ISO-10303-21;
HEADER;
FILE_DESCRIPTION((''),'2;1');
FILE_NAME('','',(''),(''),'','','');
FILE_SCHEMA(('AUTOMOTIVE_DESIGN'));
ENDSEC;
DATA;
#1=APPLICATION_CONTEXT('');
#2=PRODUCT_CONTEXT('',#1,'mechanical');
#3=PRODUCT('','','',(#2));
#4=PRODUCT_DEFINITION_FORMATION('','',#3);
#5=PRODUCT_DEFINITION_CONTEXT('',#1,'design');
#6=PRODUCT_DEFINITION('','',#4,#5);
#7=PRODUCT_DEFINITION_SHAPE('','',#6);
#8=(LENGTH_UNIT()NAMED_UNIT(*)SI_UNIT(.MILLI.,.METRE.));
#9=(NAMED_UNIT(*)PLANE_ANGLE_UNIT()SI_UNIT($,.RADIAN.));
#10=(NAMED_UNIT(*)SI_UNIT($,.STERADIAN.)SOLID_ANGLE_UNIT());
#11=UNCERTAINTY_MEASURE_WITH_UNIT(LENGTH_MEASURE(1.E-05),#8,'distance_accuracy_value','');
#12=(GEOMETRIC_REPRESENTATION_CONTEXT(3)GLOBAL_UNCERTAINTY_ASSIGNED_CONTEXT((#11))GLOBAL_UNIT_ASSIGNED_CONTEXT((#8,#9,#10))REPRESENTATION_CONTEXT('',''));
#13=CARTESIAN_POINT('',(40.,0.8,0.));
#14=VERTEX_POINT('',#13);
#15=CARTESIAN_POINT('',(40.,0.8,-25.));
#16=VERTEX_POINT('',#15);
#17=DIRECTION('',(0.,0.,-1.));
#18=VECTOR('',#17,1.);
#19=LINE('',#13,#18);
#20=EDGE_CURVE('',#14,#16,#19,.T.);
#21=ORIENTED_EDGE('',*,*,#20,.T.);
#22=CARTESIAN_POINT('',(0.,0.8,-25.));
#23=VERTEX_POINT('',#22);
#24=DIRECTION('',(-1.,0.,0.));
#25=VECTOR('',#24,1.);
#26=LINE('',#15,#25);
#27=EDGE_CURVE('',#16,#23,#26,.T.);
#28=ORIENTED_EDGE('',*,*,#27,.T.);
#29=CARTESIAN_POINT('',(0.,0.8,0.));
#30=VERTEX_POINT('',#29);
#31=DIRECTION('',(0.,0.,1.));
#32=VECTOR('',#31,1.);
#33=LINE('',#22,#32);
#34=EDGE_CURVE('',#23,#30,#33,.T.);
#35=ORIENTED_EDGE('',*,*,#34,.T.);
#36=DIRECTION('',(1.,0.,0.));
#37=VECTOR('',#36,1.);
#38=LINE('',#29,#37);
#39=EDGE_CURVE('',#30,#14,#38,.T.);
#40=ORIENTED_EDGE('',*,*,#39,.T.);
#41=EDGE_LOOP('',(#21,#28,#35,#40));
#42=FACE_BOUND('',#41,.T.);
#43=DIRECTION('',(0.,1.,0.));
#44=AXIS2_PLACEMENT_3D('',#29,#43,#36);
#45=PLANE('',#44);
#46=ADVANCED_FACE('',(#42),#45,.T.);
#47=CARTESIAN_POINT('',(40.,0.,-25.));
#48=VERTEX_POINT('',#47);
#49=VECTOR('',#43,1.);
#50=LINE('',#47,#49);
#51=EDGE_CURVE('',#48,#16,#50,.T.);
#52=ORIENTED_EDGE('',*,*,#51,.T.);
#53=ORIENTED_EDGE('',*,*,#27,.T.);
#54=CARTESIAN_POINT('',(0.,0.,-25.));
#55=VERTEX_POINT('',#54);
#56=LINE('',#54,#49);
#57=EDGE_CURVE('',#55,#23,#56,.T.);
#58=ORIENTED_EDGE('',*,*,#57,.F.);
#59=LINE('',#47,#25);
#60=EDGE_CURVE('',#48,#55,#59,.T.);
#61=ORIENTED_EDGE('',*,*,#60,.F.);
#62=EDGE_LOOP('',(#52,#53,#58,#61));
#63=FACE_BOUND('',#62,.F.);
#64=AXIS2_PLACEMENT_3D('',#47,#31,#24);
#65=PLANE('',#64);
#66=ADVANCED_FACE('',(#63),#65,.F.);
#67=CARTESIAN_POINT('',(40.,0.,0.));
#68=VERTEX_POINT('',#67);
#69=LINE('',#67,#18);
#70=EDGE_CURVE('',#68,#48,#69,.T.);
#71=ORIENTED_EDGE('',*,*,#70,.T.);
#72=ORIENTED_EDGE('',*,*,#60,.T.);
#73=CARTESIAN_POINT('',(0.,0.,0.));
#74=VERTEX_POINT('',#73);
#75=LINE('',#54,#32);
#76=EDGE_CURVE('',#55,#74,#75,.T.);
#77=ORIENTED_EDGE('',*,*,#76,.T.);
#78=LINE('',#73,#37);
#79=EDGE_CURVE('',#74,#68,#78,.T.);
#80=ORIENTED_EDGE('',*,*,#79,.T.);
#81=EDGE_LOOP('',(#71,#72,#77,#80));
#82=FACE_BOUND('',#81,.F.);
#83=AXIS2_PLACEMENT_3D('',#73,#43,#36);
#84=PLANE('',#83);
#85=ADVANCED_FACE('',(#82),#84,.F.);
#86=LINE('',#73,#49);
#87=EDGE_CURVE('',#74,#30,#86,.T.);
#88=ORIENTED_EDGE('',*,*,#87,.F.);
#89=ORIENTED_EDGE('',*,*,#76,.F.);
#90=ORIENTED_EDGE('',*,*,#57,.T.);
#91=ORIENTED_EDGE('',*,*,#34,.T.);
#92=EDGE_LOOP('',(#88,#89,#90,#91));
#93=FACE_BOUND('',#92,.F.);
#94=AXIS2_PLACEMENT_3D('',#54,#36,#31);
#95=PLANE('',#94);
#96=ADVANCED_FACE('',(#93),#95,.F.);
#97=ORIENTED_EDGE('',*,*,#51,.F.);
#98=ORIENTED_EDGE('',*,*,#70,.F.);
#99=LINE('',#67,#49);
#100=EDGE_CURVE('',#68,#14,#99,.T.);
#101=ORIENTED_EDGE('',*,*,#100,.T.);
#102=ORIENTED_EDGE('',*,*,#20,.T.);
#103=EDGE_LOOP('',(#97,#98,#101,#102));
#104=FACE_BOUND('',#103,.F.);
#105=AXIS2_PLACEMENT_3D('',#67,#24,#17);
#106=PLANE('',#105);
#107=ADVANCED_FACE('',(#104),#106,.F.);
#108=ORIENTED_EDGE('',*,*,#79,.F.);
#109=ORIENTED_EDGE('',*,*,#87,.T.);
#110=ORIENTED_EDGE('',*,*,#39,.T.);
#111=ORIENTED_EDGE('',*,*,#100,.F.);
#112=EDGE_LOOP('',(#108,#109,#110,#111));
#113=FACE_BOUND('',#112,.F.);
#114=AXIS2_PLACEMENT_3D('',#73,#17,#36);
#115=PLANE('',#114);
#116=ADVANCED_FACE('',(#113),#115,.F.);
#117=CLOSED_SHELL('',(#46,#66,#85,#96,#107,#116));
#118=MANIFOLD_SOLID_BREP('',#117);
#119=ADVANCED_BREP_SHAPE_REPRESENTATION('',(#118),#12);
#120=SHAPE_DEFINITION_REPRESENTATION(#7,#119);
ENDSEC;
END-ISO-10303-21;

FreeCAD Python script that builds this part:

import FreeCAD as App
import Part
import Sketcher

V = App.Vector


def add_polygon(sketch, points):
    """Adds a closed chain of lines whose ends are joined by coincident constraints."""
    first, n = sketch.GeometryCount, len(points)
    for a, b in zip(points, points[1:] + points[:1]):
        sketch.addGeometry(Part.LineSegment(App.Vector(*a, 0), App.Vector(*b, 0)), False)
    for i in range(n):
        sketch.addConstraint(Sketcher.Constraint("Coincident", first + i, 2, first + (i + 1) % n, 1))

doc = App.newDocument("Part")
body = doc.addObject("PartDesign::Body", "Body")

# Sketch on XZ plane
sketch1 = body.newObject("Sketcher::SketchObject", "Sketch")
sketch1.AttachmentSupport = (doc.getObject("XZ_Plane"), [""])
sketch1.MapMode = "FlatFace"
add_polygon(sketch1, [(0, -25), (0, 0), (40, 0), (40, -25)])  # lines 0-3
sketch1.addConstraint(Sketcher.Constraint("Vertical", 0))
sketch1.addConstraint(Sketcher.Constraint("Horizontal", 1))
sketch1.addConstraint(Sketcher.Constraint("Vertical", 2))
sketch1.addConstraint(Sketcher.Constraint("Horizontal", 3))
sketch1.addConstraint(Sketcher.Constraint("Coincident", 0, 2, -1, 1))
sketch1.addConstraint(Sketcher.Constraint("DistanceX", 1, 1, 1, 2, 40.0))
sketch1.addConstraint(Sketcher.Constraint("DistanceY", 0, 1, 0, 2, 25.0))
pad1 = body.newObject("PartDesign::Pad", "Pad")
pad1.Profile = sketch1
pad1.Length = 0.8
pad1.Reversed = True

doc.recompute()
